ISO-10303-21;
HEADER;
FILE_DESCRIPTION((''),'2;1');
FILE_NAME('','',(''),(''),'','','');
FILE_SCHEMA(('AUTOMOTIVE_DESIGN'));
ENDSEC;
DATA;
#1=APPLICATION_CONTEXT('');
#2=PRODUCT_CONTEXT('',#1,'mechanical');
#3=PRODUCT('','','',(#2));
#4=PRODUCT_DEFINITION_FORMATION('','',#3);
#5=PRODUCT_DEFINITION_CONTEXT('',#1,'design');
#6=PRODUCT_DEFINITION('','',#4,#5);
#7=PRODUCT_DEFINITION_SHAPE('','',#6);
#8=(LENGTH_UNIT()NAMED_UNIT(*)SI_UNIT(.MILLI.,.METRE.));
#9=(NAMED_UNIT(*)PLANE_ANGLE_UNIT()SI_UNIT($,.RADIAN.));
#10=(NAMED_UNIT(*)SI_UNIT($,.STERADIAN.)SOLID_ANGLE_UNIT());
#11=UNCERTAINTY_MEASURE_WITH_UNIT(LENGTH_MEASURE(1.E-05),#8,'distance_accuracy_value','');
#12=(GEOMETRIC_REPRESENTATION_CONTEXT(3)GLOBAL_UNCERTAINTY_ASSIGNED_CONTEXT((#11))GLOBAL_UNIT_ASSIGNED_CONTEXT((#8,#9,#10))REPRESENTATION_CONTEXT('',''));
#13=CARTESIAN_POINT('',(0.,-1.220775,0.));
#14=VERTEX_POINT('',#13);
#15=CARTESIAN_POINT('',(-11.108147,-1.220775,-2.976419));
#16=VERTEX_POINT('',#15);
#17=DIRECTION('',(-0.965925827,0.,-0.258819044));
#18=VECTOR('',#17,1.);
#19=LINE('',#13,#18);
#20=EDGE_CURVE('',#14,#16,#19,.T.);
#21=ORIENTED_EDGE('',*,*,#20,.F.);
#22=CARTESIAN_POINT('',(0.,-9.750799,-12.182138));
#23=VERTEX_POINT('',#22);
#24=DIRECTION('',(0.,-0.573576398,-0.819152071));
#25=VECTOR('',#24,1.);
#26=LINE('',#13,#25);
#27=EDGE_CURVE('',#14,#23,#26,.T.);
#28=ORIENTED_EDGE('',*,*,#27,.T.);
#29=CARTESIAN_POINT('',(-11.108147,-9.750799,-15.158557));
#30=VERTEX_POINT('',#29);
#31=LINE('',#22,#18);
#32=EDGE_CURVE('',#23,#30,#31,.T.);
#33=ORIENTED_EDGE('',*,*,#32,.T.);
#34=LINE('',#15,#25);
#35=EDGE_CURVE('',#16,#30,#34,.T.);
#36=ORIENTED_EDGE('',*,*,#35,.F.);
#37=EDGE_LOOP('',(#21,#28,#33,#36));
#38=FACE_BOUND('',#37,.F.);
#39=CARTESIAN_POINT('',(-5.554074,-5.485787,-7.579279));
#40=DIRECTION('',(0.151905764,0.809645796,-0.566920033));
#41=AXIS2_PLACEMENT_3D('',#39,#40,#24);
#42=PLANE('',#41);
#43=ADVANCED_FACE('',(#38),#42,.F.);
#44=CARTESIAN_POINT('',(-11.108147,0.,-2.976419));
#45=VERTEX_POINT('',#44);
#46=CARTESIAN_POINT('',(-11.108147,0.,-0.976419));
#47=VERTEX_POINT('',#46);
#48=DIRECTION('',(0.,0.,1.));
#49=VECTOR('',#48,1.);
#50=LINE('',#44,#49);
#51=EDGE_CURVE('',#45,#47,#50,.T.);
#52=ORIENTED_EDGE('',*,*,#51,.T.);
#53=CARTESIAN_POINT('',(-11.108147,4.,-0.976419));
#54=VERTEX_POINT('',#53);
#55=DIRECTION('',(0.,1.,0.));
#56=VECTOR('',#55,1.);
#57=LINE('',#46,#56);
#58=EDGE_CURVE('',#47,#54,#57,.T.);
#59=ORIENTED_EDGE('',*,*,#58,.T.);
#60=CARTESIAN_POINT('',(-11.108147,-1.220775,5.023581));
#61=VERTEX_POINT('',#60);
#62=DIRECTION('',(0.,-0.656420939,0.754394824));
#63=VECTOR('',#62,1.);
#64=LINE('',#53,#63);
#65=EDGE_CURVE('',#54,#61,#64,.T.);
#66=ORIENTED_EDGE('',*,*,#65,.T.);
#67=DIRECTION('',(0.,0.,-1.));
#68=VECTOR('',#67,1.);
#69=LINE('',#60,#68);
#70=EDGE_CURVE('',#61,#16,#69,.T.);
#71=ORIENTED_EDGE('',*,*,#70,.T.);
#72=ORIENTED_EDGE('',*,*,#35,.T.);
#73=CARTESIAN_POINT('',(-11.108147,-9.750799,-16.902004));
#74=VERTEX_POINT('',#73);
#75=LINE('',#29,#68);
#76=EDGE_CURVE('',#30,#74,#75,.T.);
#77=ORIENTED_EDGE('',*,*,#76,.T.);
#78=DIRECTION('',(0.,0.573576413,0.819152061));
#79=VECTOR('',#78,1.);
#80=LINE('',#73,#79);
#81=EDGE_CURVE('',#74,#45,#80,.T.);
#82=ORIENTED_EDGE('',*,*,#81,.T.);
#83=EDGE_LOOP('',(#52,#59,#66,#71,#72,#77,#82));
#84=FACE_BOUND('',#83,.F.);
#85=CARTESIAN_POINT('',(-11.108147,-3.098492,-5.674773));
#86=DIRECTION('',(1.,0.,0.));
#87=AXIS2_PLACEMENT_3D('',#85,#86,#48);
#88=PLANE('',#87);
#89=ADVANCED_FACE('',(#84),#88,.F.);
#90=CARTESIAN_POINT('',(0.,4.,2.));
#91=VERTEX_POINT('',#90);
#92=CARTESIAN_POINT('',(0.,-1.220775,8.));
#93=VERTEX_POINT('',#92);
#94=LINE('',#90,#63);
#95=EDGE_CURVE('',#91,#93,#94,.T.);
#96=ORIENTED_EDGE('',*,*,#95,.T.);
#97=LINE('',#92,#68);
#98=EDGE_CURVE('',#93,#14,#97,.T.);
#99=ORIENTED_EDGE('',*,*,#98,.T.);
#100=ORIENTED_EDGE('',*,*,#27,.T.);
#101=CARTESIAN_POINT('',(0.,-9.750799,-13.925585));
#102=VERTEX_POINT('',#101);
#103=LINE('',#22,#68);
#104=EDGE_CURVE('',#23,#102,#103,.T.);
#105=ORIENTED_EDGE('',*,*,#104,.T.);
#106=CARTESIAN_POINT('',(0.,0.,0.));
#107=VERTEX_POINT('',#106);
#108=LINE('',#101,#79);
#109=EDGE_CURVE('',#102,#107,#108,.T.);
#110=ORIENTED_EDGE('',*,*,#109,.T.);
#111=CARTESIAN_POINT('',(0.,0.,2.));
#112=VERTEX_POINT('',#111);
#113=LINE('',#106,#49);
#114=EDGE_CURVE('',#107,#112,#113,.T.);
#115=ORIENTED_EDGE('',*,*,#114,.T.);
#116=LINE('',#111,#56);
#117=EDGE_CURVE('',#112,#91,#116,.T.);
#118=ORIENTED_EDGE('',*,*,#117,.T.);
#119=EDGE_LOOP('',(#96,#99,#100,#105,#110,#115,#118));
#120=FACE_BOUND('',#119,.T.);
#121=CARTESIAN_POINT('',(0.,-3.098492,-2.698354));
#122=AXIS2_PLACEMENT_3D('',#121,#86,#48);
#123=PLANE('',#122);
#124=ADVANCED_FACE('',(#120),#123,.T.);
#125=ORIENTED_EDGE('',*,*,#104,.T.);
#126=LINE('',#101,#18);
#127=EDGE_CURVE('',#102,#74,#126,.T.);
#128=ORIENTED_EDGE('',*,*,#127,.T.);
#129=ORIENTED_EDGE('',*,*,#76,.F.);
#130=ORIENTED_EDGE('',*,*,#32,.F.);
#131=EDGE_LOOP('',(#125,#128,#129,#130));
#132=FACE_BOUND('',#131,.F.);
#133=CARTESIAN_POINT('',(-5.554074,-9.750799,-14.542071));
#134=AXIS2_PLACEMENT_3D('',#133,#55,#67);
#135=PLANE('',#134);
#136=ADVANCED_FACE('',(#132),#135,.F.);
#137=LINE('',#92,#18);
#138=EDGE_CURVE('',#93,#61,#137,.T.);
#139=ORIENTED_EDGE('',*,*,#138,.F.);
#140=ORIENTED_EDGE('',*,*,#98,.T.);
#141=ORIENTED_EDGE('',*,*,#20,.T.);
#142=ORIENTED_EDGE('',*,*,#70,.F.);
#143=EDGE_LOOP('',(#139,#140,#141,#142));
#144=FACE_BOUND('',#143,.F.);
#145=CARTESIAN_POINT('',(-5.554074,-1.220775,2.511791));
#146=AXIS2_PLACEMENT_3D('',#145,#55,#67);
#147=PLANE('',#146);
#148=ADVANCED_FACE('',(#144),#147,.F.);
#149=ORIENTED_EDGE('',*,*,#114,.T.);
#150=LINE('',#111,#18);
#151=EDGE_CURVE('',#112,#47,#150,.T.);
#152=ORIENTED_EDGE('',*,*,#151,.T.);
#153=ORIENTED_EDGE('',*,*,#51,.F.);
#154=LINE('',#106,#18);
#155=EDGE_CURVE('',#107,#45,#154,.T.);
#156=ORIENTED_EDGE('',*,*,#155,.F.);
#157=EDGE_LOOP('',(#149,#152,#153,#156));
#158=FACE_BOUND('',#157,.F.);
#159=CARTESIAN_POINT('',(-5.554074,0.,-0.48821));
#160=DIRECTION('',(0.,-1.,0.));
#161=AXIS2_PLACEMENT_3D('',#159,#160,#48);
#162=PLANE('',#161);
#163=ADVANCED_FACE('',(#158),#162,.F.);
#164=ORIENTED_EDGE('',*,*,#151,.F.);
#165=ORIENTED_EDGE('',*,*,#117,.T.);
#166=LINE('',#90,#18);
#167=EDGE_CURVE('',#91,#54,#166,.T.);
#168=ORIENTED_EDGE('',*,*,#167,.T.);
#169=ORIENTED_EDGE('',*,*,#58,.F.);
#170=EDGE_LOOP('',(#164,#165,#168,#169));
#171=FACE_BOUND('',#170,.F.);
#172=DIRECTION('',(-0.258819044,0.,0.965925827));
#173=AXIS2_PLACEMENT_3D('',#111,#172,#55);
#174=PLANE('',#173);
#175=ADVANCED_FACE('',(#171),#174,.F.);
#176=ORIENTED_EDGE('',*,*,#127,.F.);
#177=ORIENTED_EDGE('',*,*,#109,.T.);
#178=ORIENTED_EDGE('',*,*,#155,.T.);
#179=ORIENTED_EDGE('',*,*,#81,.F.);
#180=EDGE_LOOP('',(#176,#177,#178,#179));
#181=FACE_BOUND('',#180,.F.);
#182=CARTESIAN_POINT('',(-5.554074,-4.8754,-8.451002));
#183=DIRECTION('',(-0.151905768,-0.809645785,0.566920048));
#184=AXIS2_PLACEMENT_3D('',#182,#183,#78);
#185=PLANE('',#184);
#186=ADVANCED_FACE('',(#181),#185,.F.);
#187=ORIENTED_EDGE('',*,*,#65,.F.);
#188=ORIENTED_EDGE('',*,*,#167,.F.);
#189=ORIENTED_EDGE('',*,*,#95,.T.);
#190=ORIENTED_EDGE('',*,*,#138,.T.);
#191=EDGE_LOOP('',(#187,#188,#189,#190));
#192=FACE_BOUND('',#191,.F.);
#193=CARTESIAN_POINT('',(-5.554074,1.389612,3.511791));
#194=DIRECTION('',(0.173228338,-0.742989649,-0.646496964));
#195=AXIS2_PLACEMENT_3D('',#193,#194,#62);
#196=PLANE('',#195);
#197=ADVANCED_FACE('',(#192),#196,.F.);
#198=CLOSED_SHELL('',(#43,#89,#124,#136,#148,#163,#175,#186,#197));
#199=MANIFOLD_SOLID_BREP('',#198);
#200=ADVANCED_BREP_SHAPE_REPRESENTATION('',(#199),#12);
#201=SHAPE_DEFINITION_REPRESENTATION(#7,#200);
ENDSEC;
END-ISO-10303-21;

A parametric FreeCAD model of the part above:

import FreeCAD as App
import Part
import Sketcher
Q = App.Units.Quantity

doc = App.newDocument("Part")
body = doc.addObject("PartDesign::Body", "Body")

# Sketch on YZ plane
sketch1 = body.newObject("Sketcher::SketchObject", "Sketch")
sketch1.AttachmentSupport = (doc.getObject("YZ_Plane"), [""])
sketch1.MapMode = "FlatFace"
sketch1.addGeometry([
    Part.LineSegment(App.Vector(-9.8, -13.9, 0), App.Vector(0, 0, 0)),  # 0
    Part.LineSegment(App.Vector(0, 0, 0), App.Vector(0, 2, 0)),  # 1
    Part.LineSegment(App.Vector(0, 2, 0), App.Vector(4, 2, 0)),  # 2
    Part.LineSegment(App.Vector(4, 2, 0), App.Vector(-1.2, 8, 0)),  # 3
    Part.LineSegment(App.Vector(-1.2, 8, 0), App.Vector(-1.2, 0, 0)),  # 4
    Part.LineSegment(App.Vector(-1.2, 0, 0), App.Vector(-9.8, -12.2, 0)),  # 5
    Part.LineSegment(App.Vector(-9.8, -12.2, 0), App.Vector(-9.8, -13.9, 0)),  # 6
], False)
sketch1.addConstraint([
    Sketcher.Constraint("Coincident", 0, 2, 1, 1),
    Sketcher.Constraint("Coincident", 1, 2, 2, 1),
    Sketcher.Constraint("Coincident", 2, 2, 3, 1),
    Sketcher.Constraint("Coincident", 3, 2, 4, 1),
    Sketcher.Constraint("Coincident", 4, 2, 5, 1),
    Sketcher.Constraint("Coincident", 5, 2, 6, 1),
    Sketcher.Constraint("Coincident", 6, 2, 0, 1),
    Sketcher.Constraint("Vertical", 1),
    Sketcher.Constraint("Horizontal", 2),
    Sketcher.Constraint("Vertical", 4),
    Sketcher.Constraint("Vertical", 6),
    Sketcher.Constraint("Coincident", 0, 2, -1, 1),
    Sketcher.Constraint("PointOnObject", 4, 2, -1),
    Sketcher.Constraint("Parallel", 0, 5),
    Sketcher.Constraint("DistanceX", 2, 1, 2, 2, 4.0),
    Sketcher.Constraint("DistanceY", 1, 1, 1, 2, 2.0),
    Sketcher.Constraint("DistanceY", 4, 2, 4, 1, 8.0),
    Sketcher.Constraint("Angle", 0, Q("55.000002 deg")),
    Sketcher.Constraint("Distance", 0, 17.0),
    Sketcher.Constraint("DistanceY", 6, 2, 6, 1, 1.743447),
])

# Sketch on an angled plane
sketch2 = body.newObject("Sketcher::SketchObject", "Sketch001")
sketch2.Placement = App.Placement(App.Vector(-2, 0, 7.464102), App.Rotation(App.Vector(-0.965925827, 0, -0.258819044), App.Vector(0, 1.000000001, 0), App.Vector(0.258819044, 0, -0.965925827), "ZXY"))
sketch2.addGeometry(Part.LineSegment(App.Vector(-2, -1, 0), App.Vector(9, -1, 0)), False)
sketch2.addConstraint([
    Sketcher.Constraint("Horizontal", 0),
    Sketcher.Constraint("DistanceX", 0, 1, 0, 2, 11.5),
    Sketcher.Constraint("DistanceX", 0, 1, -1, 1, 2.070552),
    Sketcher.Constraint("DistanceY", 0, 1, -1, 1, 1.220775),
])
doc.recompute()

additivepipe = body.newObject("PartDesign::AdditivePipe", "AdditivePipe")
additivepipe.Profile = sketch1
additivepipe.Spine = (sketch2, ["Edge1"])

doc.recompute()
